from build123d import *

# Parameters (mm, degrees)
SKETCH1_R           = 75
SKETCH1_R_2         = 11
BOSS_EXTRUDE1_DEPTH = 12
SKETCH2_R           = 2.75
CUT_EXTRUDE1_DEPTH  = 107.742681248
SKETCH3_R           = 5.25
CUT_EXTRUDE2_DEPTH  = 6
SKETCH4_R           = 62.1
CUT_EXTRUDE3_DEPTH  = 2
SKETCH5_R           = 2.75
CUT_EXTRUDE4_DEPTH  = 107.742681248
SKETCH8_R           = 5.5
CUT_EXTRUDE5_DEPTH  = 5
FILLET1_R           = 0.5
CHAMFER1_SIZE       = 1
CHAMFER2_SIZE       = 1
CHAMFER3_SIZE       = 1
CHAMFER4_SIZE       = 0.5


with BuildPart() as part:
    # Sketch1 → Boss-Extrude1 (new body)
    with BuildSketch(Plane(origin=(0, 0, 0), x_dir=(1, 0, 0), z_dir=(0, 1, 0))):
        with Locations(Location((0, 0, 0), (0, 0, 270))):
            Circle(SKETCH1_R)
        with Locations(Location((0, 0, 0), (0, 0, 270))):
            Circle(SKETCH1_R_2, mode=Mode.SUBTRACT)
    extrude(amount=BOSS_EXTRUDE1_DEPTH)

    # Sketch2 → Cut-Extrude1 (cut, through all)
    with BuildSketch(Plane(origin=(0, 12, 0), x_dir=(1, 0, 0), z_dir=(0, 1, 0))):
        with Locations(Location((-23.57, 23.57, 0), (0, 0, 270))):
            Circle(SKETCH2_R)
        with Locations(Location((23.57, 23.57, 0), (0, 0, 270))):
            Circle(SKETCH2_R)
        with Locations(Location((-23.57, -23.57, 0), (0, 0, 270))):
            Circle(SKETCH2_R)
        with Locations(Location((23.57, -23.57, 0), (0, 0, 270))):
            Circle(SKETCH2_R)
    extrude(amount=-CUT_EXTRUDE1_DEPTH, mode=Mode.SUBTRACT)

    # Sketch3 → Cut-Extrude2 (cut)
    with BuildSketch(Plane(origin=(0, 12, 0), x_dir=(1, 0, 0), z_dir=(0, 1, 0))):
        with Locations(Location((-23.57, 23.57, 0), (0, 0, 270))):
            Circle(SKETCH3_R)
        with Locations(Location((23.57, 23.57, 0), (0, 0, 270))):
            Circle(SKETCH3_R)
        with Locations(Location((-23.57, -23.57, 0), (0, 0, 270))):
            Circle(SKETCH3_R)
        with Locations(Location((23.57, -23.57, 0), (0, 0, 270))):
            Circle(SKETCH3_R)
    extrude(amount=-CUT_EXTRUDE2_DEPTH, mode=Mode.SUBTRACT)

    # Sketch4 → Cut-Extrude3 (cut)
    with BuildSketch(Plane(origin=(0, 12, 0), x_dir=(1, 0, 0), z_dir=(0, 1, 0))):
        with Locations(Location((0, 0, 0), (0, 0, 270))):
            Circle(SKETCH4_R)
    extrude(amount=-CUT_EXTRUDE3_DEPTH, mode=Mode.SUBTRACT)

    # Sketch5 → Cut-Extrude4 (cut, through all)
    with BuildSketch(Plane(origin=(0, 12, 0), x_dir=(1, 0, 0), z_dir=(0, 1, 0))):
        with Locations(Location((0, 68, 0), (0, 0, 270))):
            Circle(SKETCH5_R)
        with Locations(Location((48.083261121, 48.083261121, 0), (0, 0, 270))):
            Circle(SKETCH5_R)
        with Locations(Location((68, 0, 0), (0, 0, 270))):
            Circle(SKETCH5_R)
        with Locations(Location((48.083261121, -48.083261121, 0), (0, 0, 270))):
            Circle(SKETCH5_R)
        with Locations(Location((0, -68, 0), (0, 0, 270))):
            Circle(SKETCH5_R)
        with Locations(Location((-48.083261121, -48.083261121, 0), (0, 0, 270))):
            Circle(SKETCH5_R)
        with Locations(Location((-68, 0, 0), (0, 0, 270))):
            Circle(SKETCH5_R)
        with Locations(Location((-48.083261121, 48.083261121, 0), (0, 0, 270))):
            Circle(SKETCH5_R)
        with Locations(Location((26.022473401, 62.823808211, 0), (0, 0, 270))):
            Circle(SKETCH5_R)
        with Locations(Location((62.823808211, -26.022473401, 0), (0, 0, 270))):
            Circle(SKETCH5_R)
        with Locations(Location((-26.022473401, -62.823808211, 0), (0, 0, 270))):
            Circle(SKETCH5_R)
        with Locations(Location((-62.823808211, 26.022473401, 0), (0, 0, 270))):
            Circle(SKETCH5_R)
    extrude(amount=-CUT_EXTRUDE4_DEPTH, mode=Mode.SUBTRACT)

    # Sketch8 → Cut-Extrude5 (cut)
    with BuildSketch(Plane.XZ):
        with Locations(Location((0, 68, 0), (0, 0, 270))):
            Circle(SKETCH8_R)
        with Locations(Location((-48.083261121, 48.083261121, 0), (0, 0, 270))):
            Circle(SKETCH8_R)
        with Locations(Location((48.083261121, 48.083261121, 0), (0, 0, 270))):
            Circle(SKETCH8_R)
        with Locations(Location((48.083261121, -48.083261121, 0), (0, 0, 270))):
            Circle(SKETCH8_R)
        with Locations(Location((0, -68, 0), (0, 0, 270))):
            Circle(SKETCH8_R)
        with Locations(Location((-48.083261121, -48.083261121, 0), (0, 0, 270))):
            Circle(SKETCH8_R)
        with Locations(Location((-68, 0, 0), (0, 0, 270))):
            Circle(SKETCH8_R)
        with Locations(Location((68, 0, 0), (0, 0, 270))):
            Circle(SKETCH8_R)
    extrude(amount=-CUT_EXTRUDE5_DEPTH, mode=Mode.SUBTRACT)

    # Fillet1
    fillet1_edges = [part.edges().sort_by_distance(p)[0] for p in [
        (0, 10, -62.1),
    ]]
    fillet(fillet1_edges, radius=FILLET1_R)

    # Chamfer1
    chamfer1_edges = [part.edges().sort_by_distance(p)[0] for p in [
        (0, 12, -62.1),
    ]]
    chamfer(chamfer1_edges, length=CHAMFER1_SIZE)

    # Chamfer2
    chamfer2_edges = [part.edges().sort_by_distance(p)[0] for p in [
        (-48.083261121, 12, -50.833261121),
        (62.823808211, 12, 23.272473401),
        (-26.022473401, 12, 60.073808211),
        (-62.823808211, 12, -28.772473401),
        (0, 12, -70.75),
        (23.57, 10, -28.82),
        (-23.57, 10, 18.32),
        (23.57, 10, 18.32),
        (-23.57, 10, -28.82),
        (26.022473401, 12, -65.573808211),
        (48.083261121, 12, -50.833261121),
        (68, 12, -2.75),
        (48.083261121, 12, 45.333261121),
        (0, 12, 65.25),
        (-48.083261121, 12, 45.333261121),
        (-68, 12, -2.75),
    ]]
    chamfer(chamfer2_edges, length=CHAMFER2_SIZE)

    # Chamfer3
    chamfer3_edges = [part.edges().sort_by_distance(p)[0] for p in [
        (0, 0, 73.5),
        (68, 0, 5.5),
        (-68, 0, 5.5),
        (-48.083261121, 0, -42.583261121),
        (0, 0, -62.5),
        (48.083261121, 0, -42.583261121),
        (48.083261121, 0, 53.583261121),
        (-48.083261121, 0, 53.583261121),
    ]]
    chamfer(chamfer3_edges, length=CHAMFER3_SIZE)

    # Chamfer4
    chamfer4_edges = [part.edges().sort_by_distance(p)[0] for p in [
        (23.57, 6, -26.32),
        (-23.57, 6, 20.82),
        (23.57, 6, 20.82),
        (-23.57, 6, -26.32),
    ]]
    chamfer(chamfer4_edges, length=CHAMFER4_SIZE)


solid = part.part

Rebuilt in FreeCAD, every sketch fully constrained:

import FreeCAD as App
import Part
import Sketcher
Q = App.Units.Quantity


def edges_at(feature, points):
    """Names of the edges that pass closest to the given points."""
    edges = feature.Shape.Edges
    near = lambda p: min(range(len(edges)), key=lambda i: edges[i].distToShape(Part.Vertex(*p))[0])
    return sorted({f"Edge{near(p) + 1}" for p in points})

doc = App.newDocument("Part")
body = doc.addObject("PartDesign::Body", "Body")

# Sketch on XZ plane
sketch1 = body.newObject("Sketcher::SketchObject", "Sketch")
sketch1.AttachmentSupport = (doc.getObject("XZ_Plane"), [""])
sketch1.MapMode = "FlatFace"
sketch1.addGeometry([
    Part.Circle(App.Vector(0, 0, 0), App.Vector(0, 0, 1), 75),
    Part.Circle(App.Vector(0, 0, 0), App.Vector(0, 0, 1), 11),
], False)
sketch1.addConstraint([
    Sketcher.Constraint("Coincident", 0, 3, -1, 1),
    Sketcher.Constraint("Coincident", 1, 3, -1, 1),
    Sketcher.Constraint("Diameter", 0, Q("150 mm")),
    Sketcher.Constraint("Diameter", 1, Q("22 mm")),
])
pad1 = body.newObject("PartDesign::Pad", "Pad")
pad1.Profile = sketch1
pad1.Length = 12
pad1.Reversed = True

# Sketch on XZ plane
sketch2 = body.newObject("Sketcher::SketchObject", "Sketch001")
sketch2.AttachmentSupport = (doc.getObject("XZ_Plane"), [""])
sketch2.MapMode = "FlatFace"
sketch2.AttachmentOffset = App.Placement(App.Vector(0, 0, -12), App.Rotation())
sketch2.addGeometry([
    Part.Circle(App.Vector(-23.6, -23.6, 0), App.Vector(0, 0, 1), 2.8),
    Part.Circle(App.Vector(23.6, -23.6, 0), App.Vector(0, 0, 1), 2.8),
    Part.Circle(App.Vector(-23.6, 23.6, 0), App.Vector(0, 0, 1), 2.8),
    Part.Circle(App.Vector(23.6, 23.6, 0), App.Vector(0, 0, 1), 2.8),
], False)
sketch2.addConstraint([
    Sketcher.Constraint("Equal", 0, 1),
    Sketcher.Constraint("Equal", 1, 2),
    Sketcher.Constraint("Equal", 2, 3),
    Sketcher.Constraint("Symmetric", 1, 3, 2, 3, -1, 1),
    Sketcher.Constraint("Symmetric", 0, 3, 3, 3, -1, 1),
    Sketcher.Constraint("Symmetric", 0, 3, 1, 3, -2),
    Sketcher.Constraint("Diameter", 0, Q("5.5 mm")),
    Sketcher.Constraint("DistanceX", 0, 3, -1, 1, Q("23.57 mm")),
    Sketcher.Constraint("DistanceY", 0, 3, -1, 1, Q("23.57 mm")),
])
pocket1 = body.newObject("PartDesign::Pocket", "Pocket")
pocket1.Profile = sketch2
pocket1.Type = "ThroughAll"
pocket1.Reversed = True

# Sketch on XZ plane
sketch3 = body.newObject("Sketcher::SketchObject", "Sketch002")
sketch3.AttachmentSupport = (doc.getObject("XZ_Plane"), [""])
sketch3.MapMode = "FlatFace"
sketch3.AttachmentOffset = App.Placement(App.Vector(0, 0, -12), App.Rotation())
sketch3.addGeometry([
    Part.Circle(App.Vector(-24, -24, 0), App.Vector(0, 0, 1), 5),
    Part.Circle(App.Vector(24, -24, 0), App.Vector(0, 0, 1), 5),
    Part.Circle(App.Vector(-24, 24, 0), App.Vector(0, 0, 1), 5),
    Part.Circle(App.Vector(24, 24, 0), App.Vector(0, 0, 1), 5),
], False)
sketch3.addConstraint([
    Sketcher.Constraint("Equal", 0, 1),
    Sketcher.Constraint("Equal", 1, 2),
    Sketcher.Constraint("Equal", 2, 3),
    Sketcher.Constraint("Symmetric", 1, 3, 2, 3, -1, 1),
    Sketcher.Constraint("Symmetric", 0, 3, 3, 3, -1, 1),
    Sketcher.Constraint("Symmetric", 0, 3, 1, 3, -2),
    Sketcher.Constraint("Diameter", 0, Q("10.5 mm")),
    Sketcher.Constraint("DistanceX", 0, 3, -1, 1, Q("23.57 mm")),
    Sketcher.Constraint("DistanceY", 0, 3, -1, 1, Q("23.57 mm")),
])
pocket2 = body.newObject("PartDesign::Pocket", "Pocket001")
pocket2.Profile = sketch3
pocket2.Length = 6
pocket2.Reversed = True

# Sketch on XZ plane
sketch4 = body.newObject("Sketcher::SketchObject", "Sketch003")
sketch4.AttachmentSupport = (doc.getObject("XZ_Plane"), [""])
sketch4.MapMode = "FlatFace"
sketch4.AttachmentOffset = App.Placement(App.Vector(0, 0, -12), App.Rotation())
sketch4.addGeometry(Part.Circle(App.Vector(0, 0, 0), App.Vector(0, 0, 1), 62), False)
sketch4.addConstraint([
    Sketcher.Constraint("Coincident", 0, 3, -1, 1),
    Sketcher.Constraint("Diameter", 0, Q("124.2 mm")),
])
pocket3 = body.newObject("PartDesign::Pocket", "Pocket002")
pocket3.Profile = sketch4
pocket3.Length = 2
pocket3.Reversed = True

# Sketch on XZ plane
sketch5 = body.newObject("Sketcher::SketchObject", "Sketch004")
sketch5.AttachmentSupport = (doc.getObject("XZ_Plane"), [""])
sketch5.MapMode = "FlatFace"
sketch5.AttachmentOffset = App.Placement(App.Vector(0, 0, -12), App.Rotation())
sketch5.addGeometry([
    Part.Circle(App.Vector(0, -68, 0), App.Vector(0, 0, 1), 2.8),  # 0
    Part.Circle(App.Vector(48.1, -48.1, 0), App.Vector(0, 0, 1), 2.8),  # 1
    Part.Circle(App.Vector(68, 0, 0), App.Vector(0, 0, 1), 2.8),  # 2
    Part.Circle(App.Vector(48.1, 48.1, 0), App.Vector(0, 0, 1), 2.8),  # 3
    Part.Circle(App.Vector(0, 68, 0), App.Vector(0, 0, 1), 2.8),  # 4
    Part.Circle(App.Vector(-48.1, 48.1, 0), App.Vector(0, 0, 1), 2.8),  # 5
    Part.Circle(App.Vector(-68, 0, 0), App.Vector(0, 0, 1), 2.8),  # 6
    Part.Circle(App.Vector(-48.1, -48.1, 0), App.Vector(0, 0, 1), 2.8),  # 7
    Part.Circle(App.Vector(26, -62.8, 0), App.Vector(0, 0, 1), 2.8),  # 8
    Part.Circle(App.Vector(62.8, 26, 0), App.Vector(0, 0, 1), 2.8),  # 9
    Part.Circle(App.Vector(-26, 62.8, 0), App.Vector(0, 0, 1), 2.8),  # 10
    Part.Circle(App.Vector(-62.8, -26, 0), App.Vector(0, 0, 1), 2.8),  # 11
], False)
sketch5.addConstraint([
    Sketcher.Constraint("Equal", 0, 1),
    Sketcher.Constraint("Equal", 1, 2),
    Sketcher.Constraint("Equal", 2, 3),
    Sketcher.Constraint("Equal", 3, 4),
    Sketcher.Constraint("Equal", 4, 5),
    Sketcher.Constraint("Equal", 5, 6),
    Sketcher.Constraint("Equal", 6, 7),
    Sketcher.Constraint("Equal", 7, 8),
    Sketcher.Constraint("Equal", 8, 9),
    Sketcher.Constraint("Equal", 9, 10),
    Sketcher.Constraint("Equal", 10, 11),
    Sketcher.Constraint("Symmetric", 0, 3, 4, 3, -1, 1),
    Sketcher.Constraint("Symmetric", 1, 3, 5, 3, -1, 1),
    Sketcher.Constraint("Symmetric", 2, 3, 6, 3, -1, 1),
    Sketcher.Constraint("Symmetric", 3, 3, 7, 3, -1, 1),
    Sketcher.Constraint("Symmetric", 8, 3, 10, 3, -1, 1),
    Sketcher.Constraint("Symmetric", 9, 3, 11, 3, -1, 1),
    Sketcher.Constraint("Symmetric", 3, 3, 5, 3, -2),
    Sketcher.Constraint("PointOnObject", 0, 3, -2),
    Sketcher.Constraint("PointOnObject", 2, 3, -1),
    Sketcher.Constraint("Diameter", 0, Q("5.5 mm")),
    Sketcher.Constraint("DistanceY", 0, 3, -1, 1, Q("68 mm")),
    Sketcher.Constraint("DistanceX", -1, 1, 2, 3, Q("68 mm")),
    Sketcher.Constraint("DistanceX", -1, 1, 1, 3, Q("48.083261 mm")),
    Sketcher.Constraint("DistanceY", 1, 3, -1, 1, Q("48.083261 mm")),
    Sketcher.Constraint("DistanceY", 8, 3, -1, 1, Q("62.823808 mm")),
    Sketcher.Constraint("DistanceX", -1, 1, 9, 3, Q("62.823808 mm")),
    Sketcher.Constraint("DistanceY", 8, 3, 9, 3, Q("88.846282 mm")),
    Sketcher.Constraint("DistanceX", 10, 3, 9, 3, Q("88.846282 mm")),
])
pocket4 = body.newObject("PartDesign::Pocket", "Pocket003")
pocket4.Profile = sketch5
pocket4.Type = "ThroughAll"
pocket4.Reversed = True

# Sketch on XZ plane
sketch6 = body.newObject("Sketcher::SketchObject", "Sketch005")
sketch6.AttachmentSupport = (doc.getObject("XZ_Plane"), [""])
sketch6.MapMode = "FlatFace"
sketch6.addGeometry([
    Part.Circle(App.Vector(0, 68, 0), App.Vector(0, 0, 1), 6),  # 0
    Part.Circle(App.Vector(-48, 48, 0), App.Vector(0, 0, 1), 6),  # 1
    Part.Circle(App.Vector(48, 48, 0), App.Vector(0, 0, 1), 6),  # 2
    Part.Circle(App.Vector(48, -48, 0), App.Vector(0, 0, 1), 6),  # 3
    Part.Circle(App.Vector(0, -68, 0), App.Vector(0, 0, 1), 6),  # 4
    Part.Circle(App.Vector(-48, -48, 0), App.Vector(0, 0, 1), 6),  # 5
    Part.Circle(App.Vector(-68, 0, 0), App.Vector(0, 0, 1), 6),  # 6
    Part.Circle(App.Vector(68, 0, 0), App.Vector(0, 0, 1), 6),  # 7
], False)
sketch6.addConstraint([
    Sketcher.Constraint("Equal", 0, 1),
    Sketcher.Constraint("Equal", 1, 2),
    Sketcher.Constraint("Equal", 2, 3),
    Sketcher.Constraint("Equal", 3, 4),
    Sketcher.Constraint("Equal", 4, 5),
    Sketcher.Constraint("Equal", 5, 6),
    Sketcher.Constraint("Equal", 6, 7),
    Sketcher.Constraint("Symmetric", 1, 3, 3, 3, -1, 1),
    Sketcher.Constraint("Symmetric", 0, 3, 4, 3, -1, 1),
    Sketcher.Constraint("Symmetric", 2, 3, 5, 3, -1, 1),
    Sketcher.Constraint("Symmetric", 6, 3, 7, 3, -1, 1),
    Sketcher.Constraint("Symmetric", 1, 3, 2, 3, -2),
    Sketcher.Constraint("PointOnObject", 0, 3, -2),
    Sketcher.Constraint("PointOnObject", 6, 3, -1),
    Sketcher.Constraint("Diameter", 0, Q("11 mm")),
    Sketcher.Constraint("DistanceY", -1, 1, 0, 3, Q("68 mm")),
    Sketcher.Constraint("DistanceX", 6, 3, -1, 1, Q("68 mm")),
    Sketcher.Constraint("DistanceX", 1, 3, -1, 1, Q("48.083261 mm")),
    Sketcher.Constraint("DistanceY", -1, 1, 1, 3, Q("48.083261 mm")),
])
pocket5 = body.newObject("PartDesign::Pocket", "Pocket004")
pocket5.Profile = sketch6
pocket5.Length = 5
doc.recompute()

fillet = body.newObject("PartDesign::Fillet", "Fillet")
fillet.Base = (pocket5, edges_at(pocket5, [(0, 10, -62.1)]))
fillet.Radius = 0.5
doc.recompute()

chamfer = body.newObject("PartDesign::Chamfer", "Chamfer")
chamfer.Base = (fillet, edges_at(fillet, [(0, 12, -62.1)]))
chamfer.Size = 1
doc.recompute()

chamfer2 = body.newObject("PartDesign::Chamfer", "Chamfer001")
chamfer2.Base = (chamfer, edges_at(chamfer, [
    (-48.083, 12, -50.833),
    (62.824, 12, 23.272),
    (-26.022, 12, 60.074),
    (-62.824, 12, -28.772),
    (0, 12, -70.75),
    (23.57, 10, -28.82),
    (-23.57, 10, 18.32),
    (23.57, 10, 18.32),
    (-23.57, 10, -28.82),
    (26.022, 12, -65.574),
    (48.083, 12, -50.833),
    (68, 12, -2.75),
    (48.083, 12, 45.333),
    (0, 12, 65.25),
    (-48.083, 12, 45.333),
    (-68, 12, -2.75),
]))
chamfer2.Size = 1
doc.recompute()

chamfer3 = body.newObject("PartDesign::Chamfer", "Chamfer002")
chamfer3.Base = (chamfer2, edges_at(chamfer2, [
    (0, 0, 73.5),
    (68, 0, 5.5),
    (-68, 0, 5.5),
    (-48.083, 0, -42.583),
    (0, 0, -62.5),
    (48.083, 0, -42.583),
    (48.083, 0, 53.583),
    (-48.083, 0, 53.583),
]))
chamfer3.Size = 1
doc.recompute()

chamfer4 = body.newObject("PartDesign::Chamfer", "Chamfer003")
chamfer4.Base = (chamfer3, edges_at(chamfer3, [
    (23.57, 6, -26.32),
    (-23.57, 6, 20.82),
    (23.57, 6, 20.82),
    (-23.57, 6, -26.32),
]))
chamfer4.Size = 0.5

doc.recompute()
